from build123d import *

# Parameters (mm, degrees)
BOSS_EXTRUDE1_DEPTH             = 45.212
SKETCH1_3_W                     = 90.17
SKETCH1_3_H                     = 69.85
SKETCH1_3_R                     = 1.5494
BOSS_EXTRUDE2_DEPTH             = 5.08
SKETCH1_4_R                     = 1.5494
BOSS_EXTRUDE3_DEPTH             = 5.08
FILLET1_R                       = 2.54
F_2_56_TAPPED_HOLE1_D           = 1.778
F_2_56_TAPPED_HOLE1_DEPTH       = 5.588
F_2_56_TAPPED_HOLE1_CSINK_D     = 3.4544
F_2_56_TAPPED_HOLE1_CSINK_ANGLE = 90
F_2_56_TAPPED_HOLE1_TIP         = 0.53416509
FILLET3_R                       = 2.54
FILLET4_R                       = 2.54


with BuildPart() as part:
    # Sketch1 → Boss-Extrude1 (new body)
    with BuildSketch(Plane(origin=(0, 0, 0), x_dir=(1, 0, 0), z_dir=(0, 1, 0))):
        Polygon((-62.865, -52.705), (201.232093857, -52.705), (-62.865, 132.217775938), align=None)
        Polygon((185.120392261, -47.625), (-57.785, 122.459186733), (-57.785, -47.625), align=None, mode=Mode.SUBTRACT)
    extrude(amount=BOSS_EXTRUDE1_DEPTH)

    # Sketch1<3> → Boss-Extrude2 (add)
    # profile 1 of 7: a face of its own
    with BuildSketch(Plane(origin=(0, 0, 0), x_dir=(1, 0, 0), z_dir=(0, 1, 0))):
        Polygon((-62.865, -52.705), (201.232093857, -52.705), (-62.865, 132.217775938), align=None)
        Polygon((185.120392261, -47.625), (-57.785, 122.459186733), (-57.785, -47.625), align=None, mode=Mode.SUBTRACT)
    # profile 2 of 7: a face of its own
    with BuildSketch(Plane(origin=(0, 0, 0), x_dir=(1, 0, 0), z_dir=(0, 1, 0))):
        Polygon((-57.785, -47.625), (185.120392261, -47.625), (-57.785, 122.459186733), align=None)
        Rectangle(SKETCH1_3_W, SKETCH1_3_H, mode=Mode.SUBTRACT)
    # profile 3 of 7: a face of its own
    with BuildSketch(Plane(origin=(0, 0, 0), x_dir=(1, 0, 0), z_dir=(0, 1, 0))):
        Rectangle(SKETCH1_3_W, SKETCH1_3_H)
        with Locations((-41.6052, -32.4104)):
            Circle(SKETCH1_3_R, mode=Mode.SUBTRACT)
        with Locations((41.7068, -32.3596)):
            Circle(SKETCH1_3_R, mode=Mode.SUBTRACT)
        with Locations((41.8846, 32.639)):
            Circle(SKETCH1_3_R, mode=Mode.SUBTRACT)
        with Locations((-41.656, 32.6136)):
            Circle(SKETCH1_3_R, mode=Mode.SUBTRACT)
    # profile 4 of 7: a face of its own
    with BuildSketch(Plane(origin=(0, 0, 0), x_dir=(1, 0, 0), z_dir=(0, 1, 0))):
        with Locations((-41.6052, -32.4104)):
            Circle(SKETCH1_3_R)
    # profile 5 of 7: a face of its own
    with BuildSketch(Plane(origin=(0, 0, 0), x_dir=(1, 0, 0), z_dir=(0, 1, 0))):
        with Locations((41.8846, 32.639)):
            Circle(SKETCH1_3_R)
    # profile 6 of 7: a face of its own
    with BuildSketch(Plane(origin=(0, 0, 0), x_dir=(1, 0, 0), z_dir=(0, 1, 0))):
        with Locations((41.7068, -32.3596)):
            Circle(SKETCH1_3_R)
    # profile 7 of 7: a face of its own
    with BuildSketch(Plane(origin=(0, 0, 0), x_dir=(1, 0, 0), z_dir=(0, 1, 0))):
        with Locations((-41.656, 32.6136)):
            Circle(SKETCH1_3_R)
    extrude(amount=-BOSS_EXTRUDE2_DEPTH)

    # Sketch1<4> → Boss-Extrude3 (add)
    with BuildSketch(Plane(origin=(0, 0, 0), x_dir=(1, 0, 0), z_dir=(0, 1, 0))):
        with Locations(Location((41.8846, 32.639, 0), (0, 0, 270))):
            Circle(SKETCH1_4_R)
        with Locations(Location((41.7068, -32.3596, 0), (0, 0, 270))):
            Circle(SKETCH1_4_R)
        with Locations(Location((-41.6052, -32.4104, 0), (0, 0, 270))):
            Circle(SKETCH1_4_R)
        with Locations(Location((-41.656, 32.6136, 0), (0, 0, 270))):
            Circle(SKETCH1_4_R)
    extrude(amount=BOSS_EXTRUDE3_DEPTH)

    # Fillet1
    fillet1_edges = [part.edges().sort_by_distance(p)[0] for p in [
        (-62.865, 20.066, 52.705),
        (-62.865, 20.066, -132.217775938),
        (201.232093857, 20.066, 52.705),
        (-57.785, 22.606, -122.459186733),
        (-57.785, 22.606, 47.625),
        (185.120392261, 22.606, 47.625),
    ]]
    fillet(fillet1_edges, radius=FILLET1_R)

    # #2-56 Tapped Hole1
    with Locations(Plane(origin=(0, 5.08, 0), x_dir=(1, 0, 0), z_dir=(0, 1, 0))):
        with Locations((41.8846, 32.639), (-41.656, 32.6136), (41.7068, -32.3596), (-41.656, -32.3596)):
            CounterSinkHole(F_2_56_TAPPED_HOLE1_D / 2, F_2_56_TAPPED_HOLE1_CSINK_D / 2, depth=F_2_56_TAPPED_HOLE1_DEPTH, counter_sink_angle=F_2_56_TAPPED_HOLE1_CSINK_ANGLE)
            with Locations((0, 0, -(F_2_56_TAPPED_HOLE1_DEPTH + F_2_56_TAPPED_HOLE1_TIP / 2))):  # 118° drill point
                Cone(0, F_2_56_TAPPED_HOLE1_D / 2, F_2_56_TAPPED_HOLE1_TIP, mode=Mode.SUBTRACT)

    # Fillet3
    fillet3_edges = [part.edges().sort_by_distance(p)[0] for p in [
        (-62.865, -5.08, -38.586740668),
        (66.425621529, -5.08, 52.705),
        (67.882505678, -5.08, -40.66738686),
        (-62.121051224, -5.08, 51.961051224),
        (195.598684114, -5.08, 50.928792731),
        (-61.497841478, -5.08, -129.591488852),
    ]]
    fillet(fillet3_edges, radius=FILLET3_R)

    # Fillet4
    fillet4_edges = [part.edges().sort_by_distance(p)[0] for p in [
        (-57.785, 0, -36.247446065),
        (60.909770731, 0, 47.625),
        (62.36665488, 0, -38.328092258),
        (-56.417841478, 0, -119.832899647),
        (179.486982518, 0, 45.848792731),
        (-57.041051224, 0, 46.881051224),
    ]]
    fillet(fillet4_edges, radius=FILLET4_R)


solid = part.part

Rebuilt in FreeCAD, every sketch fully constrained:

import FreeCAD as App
import Part
import Sketcher
from FreeCAD import Vector
Q = App.Units.Quantity


def edges_at(feature, points):
    """Names of the edges that pass closest to the given points."""
    edges = feature.Shape.Edges
    near = lambda p: min(range(len(edges)), key=lambda i: edges[i].distToShape(Part.Vertex(*p))[0])
    return sorted({f"Edge{near(p) + 1}" for p in points})


def add_polygon(sketch, points):
    """Adds a closed chain of lines whose ends are joined by coincident constraints."""
    first, n = sketch.GeometryCount, len(points)
    for a, b in zip(points, points[1:] + points[:1]):
        sketch.addGeometry(Part.LineSegment(App.Vector(*a, 0), App.Vector(*b, 0)), False)
    for i in range(n):
        sketch.addConstraint(Sketcher.Constraint("Coincident", first + i, 2, first + (i + 1) % n, 1))

doc = App.newDocument("Part")
body = doc.addObject("PartDesign::Body", "Body")

# Sketch on XZ plane
sketch1 = body.newObject("Sketcher::SketchObject", "Sketch")
sketch1.AttachmentSupport = (doc.getObject("XZ_Plane"), [""])
sketch1.MapMode = "FlatFace"
add_polygon(sketch1, [(-63, 53), (201, 53), (-63, -132)])  # lines 0-2
add_polygon(sketch1, [(-58, -122), (185, 48), (-58, 48)])  # lines 3-5
sketch1.addConstraint([
    Sketcher.Constraint("Horizontal", 0),
    Sketcher.Constraint("Vertical", 2),
    Sketcher.Constraint("Horizontal", 4),
    Sketcher.Constraint("Vertical", 5),
    Sketcher.Constraint("Parallel", 1, 3),
    Sketcher.Constraint("Angle", 1, Q("-145 deg")),
    Sketcher.Constraint("DistanceY", 3, 2, 0, 2, Q("0.2 in")),
    Sketcher.Constraint("DistanceX", 2, 2, 4, 2, Q("0.2 in")),
    Sketcher.Constraint("DistanceY", -1, 1, 0, 2, Q("2.075 in")),
    Sketcher.Constraint("DistanceX", 1, 2, -1, 1, Q("2.475 in")),
    Sketcher.Constraint("DistanceX", 3, 2, 0, 2, 16.111702),
    Sketcher.Constraint("Distance", 1, 322.403021),
])
pad1 = body.newObject("PartDesign::Pad", "Pad")
pad1.Profile = sketch1
pad1.Length = Q("1.78 in")
pad1.Reversed = True

# Sketch on XZ plane
sketch2 = body.newObject("Sketcher::SketchObject", "Sketch001")
sketch2.AttachmentSupport = (doc.getObject("XZ_Plane"), [""])
sketch2.MapMode = "FlatFace"
add_polygon(sketch2, [(-63, 53), (201, 53), (-63, -132)])  # lines 0-2
sketch2.addConstraint([
    Sketcher.Constraint("Horizontal", 0),
    Sketcher.Constraint("Vertical", 2),
    Sketcher.Constraint("Angle", 1, Q("-145 deg")),
    Sketcher.Constraint("DistanceY", -1, 1, 0, 2, Q("2.075 in")),
    Sketcher.Constraint("DistanceX", 1, 2, -1, 1, Q("2.475 in")),
    Sketcher.Constraint("Distance", 1, 322.403021),
])
pad2 = body.newObject("PartDesign::Pad", "Pad001")
pad2.Profile = sketch2
pad2.Length = Q("0.2 in")

# Sketch on XZ plane
sketch3 = body.newObject("Sketcher::SketchObject", "Sketch002")
sketch3.AttachmentSupport = (doc.getObject("XZ_Plane"), [""])
sketch3.MapMode = "FlatFace"
sketch3.addGeometry([
    Part.Circle(Vector(41.9, -32.6, 0), Vector(0, 0, 1), 1.5),
    Part.Circle(Vector(41.7, 32.4, 0), Vector(0, 0, 1), 1.5),
    Part.Circle(Vector(-41.6, 32.4, 0), Vector(0, 0, 1), 1.5),
    Part.Circle(Vector(-41.7, -32.6, 0), Vector(0, 0, 1), 1.5),
], False)
sketch3.addConstraint([
    Sketcher.Constraint("Equal", 0, 1),
    Sketcher.Constraint("Equal", 1, 2),
    Sketcher.Constraint("Equal", 2, 3),
    Sketcher.Constraint("Diameter", 0, Q("0.122 in")),
    Sketcher.Constraint("DistanceX", 3, 3, -1, 1, Q("1.64 in")),
    Sketcher.Constraint("DistanceX", 2, 3, 1, 3, Q("3.28 in")),
    Sketcher.Constraint("DistanceY", 3, 3, 2, 3, Q("2.56 in")),
    Sketcher.Constraint("DistanceX", -1, 1, 0, 3, Q("1.649 in")),
    Sketcher.Constraint("DistanceY", 0, 3, -1, 1, Q("1.285 in")),
    Sketcher.Constraint("DistanceX", -1, 1, 1, 3, Q("1.642 in")),
    Sketcher.Constraint("DistanceY", -1, 1, 1, 3, Q("1.274 in")),
    Sketcher.Constraint("DistanceY", -1, 1, 2, 3, Q("1.276 in")),
])
pad3 = body.newObject("PartDesign::Pad", "Pad002")
pad3.Profile = sketch3
pad3.Length = Q("0.2 in")
pad3.Reversed = True
doc.recompute()

fillet = body.newObject("PartDesign::Fillet", "Fillet")
fillet.Base = (pad3, edges_at(pad3, [
    (-62.865, 20.066, 52.705),
    (-62.865, 20.066, -132.218),
    (201.232, 20.066, 52.705),
    (-57.785, 22.606, -122.459),
    (-57.785, 22.606, 47.625),
    (185.12, 22.606, 47.625),
]))
fillet.Radius = Q("0.1 in")

# Sketch on XZ plane
sketch4 = body.newObject("Sketcher::SketchObject", "Sketch003")
sketch4.AttachmentSupport = (doc.getObject("XZ_Plane"), [""])
sketch4.MapMode = "FlatFace"
sketch4.AttachmentOffset = App.Placement(Vector(0, 0, -0.2 * 25.4), App.Rotation())
sketch4.addGeometry([
    Part.Circle(Vector(41.9, -32.6, 0), Vector(0, 0, 1), 0.9),
    Part.Circle(Vector(-41.7, -32.6, 0), Vector(0, 0, 1), 0.9),
    Part.Circle(Vector(41.7, 32.4, 0), Vector(0, 0, 1), 0.9),
    Part.Circle(Vector(-41.7, 32.4, 0), Vector(0, 0, 1), 0.9),
], False)
sketch4.addConstraint([
    Sketcher.Constraint("Equal", 0, 1),
    Sketcher.Constraint("Equal", 1, 2),
    Sketcher.Constraint("Equal", 2, 3),
    Sketcher.Constraint("Horizontal", 2, 3, 3, 3),
    Sketcher.Constraint("Vertical", 1, 3, 3, 3),
    Sketcher.Constraint("Diameter", 0, Q("0.07 in")),
    Sketcher.Constraint("DistanceX", 1, 3, -1, 1, Q("1.64 in")),
    Sketcher.Constraint("DistanceX", -1, 1, 0, 3, Q("1.649 in")),
    Sketcher.Constraint("DistanceY", 0, 3, -1, 1, Q("1.285 in")),
    Sketcher.Constraint("DistanceY", 1, 3, -1, 1, Q("1.284 in")),
    Sketcher.Constraint("DistanceX", -1, 1, 2, 3, Q("1.642 in")),
    Sketcher.Constraint("DistanceY", -1, 1, 2, 3, Q("1.274 in")),
])
doc.recompute()
hole = body.newObject("PartDesign::Hole", "Hole")
hole.Profile = sketch4
hole.ThreadType = "None"
hole.Diameter = Q("0.07 in")
hole.DepthType = "Dimension"
hole.Depth = Q("0.22 in")
hole.DrillPoint = "Angled"
hole.DrillPointAngle = 118
hole.HoleCutType = "Countersink"
hole.HoleCutDiameter = Q("0.136 in")
hole.HoleCutCountersinkAngle = 90
hole.Reversed = True
doc.recompute()

fillet2 = body.newObject("PartDesign::Fillet", "Fillet001")
fillet2.Base = (hole, edges_at(hole, [
    (-62.865, -5.08, -38.587),
    (66.426, -5.08, 52.705),
    (67.883, -5.08, -40.667),
    (-62.121, -5.08, 51.961),
    (195.599, -5.08, 50.929),
    (-61.498, -5.08, -129.591),
]))
fillet2.Radius = Q("0.1 in")
doc.recompute()

fillet3 = body.newObject("PartDesign::Fillet", "Fillet002")
fillet3.Base = (fillet2, edges_at(fillet2, [
    (-57.785, 0, -36.247),
    (60.91, 0, 47.625),
    (62.367, 0, -38.328),
    (-56.418, 0, -119.833),
    (179.487, 0, 45.849),
    (-57.041, 0, 46.881),
]))
fillet3.Radius = Q("0.1 in")

doc.recompute()
